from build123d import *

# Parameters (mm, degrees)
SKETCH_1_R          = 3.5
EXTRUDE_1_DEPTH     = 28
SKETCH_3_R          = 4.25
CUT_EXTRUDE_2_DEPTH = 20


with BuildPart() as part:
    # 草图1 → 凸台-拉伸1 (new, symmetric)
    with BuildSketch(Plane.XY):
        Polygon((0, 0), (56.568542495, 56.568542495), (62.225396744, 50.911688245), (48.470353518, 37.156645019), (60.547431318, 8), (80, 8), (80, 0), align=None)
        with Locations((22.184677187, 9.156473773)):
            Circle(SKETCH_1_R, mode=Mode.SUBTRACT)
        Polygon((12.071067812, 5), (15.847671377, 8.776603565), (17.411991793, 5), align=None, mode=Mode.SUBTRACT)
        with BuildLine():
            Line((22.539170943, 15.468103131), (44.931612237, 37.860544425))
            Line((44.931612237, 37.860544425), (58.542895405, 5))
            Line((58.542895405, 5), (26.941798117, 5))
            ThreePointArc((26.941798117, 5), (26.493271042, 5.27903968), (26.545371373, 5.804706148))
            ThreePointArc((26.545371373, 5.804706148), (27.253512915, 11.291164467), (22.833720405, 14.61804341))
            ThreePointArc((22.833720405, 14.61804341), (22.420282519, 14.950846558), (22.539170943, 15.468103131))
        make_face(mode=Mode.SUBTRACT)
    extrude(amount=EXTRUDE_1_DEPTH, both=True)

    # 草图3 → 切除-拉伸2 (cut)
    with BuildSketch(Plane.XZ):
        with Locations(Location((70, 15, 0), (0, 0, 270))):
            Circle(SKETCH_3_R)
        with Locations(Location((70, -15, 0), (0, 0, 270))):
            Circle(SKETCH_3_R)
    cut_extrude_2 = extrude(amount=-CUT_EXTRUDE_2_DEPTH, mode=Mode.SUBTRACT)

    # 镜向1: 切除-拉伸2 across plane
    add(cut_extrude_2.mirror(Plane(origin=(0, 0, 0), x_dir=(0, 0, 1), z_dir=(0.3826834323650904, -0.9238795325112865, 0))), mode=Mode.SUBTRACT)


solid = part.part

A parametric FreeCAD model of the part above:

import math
import FreeCAD as App
import Part
import Sketcher

V = App.Vector
Q = App.Units.Quantity

doc = App.newDocument("Part")
body = doc.addObject("PartDesign::Body", "Body")

sketch1 = body.newObject("Sketcher::SketchObject", "Sketch")
sketch1.AttachmentSupport = (doc.getObject("XY_Plane"), [""])
sketch1.MapMode = "FlatFace"
sketch1.addGeometry([
    Part.LineSegment(V(56.6, 56.6, 0), V(0, 0, 0)),
    Part.LineSegment(V(0, 0, 0), V(80, 0, 0)),
    Part.LineSegment(V(80, 0, 0), V(80, 8, 0)),
    Part.LineSegment(V(80, 8, 0), V(60.5, 8, 0)),
    Part.LineSegment(V(60.5, 8, 0), V(48.5, 37.2, 0)),
    Part.LineSegment(V(48.5, 37.2, 0), V(62.2, 50.9, 0)),
    Part.LineSegment(V(62.2, 50.9, 0), V(56.6, 56.6, 0)),
    Part.LineSegment(V(12.1, 5, 0), V(15.8, 8.8, 0)),
    Part.LineSegment(V(15.8, 8.8, 0), V(17.4, 5, 0)),
    Part.LineSegment(V(17.4, 5, 0), V(12.1, 5, 0)),
    Part.Circle(V(22.2, 9.2, 0), V(0, 0, 1), 3.5),
    Part.LineSegment(V(22.5, 15.5, 0), V(44.9, 37.9, 0)),
    Part.LineSegment(V(44.9, 37.9, 0), V(58.5, 5, 0)),
    Part.LineSegment(V(58.5, 5, 0), V(26.9, 5, 0)),
    Part.ArcOfCircle(Part.Circle(V(26.9, 5.5, 0), V(0, 0, 1), 0.5), math.radians(142), math.radians(270)),
    Part.ArcOfCircle(Part.Circle(V(22.2, 9.2, 0), V(0, 0, 1), 5.5), math.radians(-38), math.radians(83)),
    Part.ArcOfCircle(Part.Circle(V(22.9, 15.1, 0), V(0, 0, 1), 0.5), math.radians(135), math.radians(263)),
], False)
sketch1.addConstraint([
    Sketcher.Constraint("Coincident", 0, 2, 1, 1),
    Sketcher.Constraint("Coincident", 1, 2, 2, 1),
    Sketcher.Constraint("Coincident", 2, 2, 3, 1),
    Sketcher.Constraint("Coincident", 3, 2, 4, 1),
    Sketcher.Constraint("Coincident", 4, 2, 5, 1),
    Sketcher.Constraint("Coincident", 5, 2, 6, 1),
    Sketcher.Constraint("Coincident", 6, 2, 0, 1),
    Sketcher.Constraint("Coincident", 7, 2, 8, 1),
    Sketcher.Constraint("Coincident", 8, 2, 9, 1),
    Sketcher.Constraint("Coincident", 9, 2, 7, 1),
    Sketcher.Constraint("Coincident", 11, 2, 12, 1),
    Sketcher.Constraint("Coincident", 12, 2, 13, 1),
    Sketcher.Constraint("Tangent", 13, 2, 14, 2),
    Sketcher.Constraint("Tangent", 14, 1, 15, 1),
    Sketcher.Constraint("Tangent", 15, 2, 16, 2),
    Sketcher.Constraint("Tangent", 16, 1, 11, 1),
    Sketcher.Constraint("Horizontal", 1),
    Sketcher.Constraint("Vertical", 2),
    Sketcher.Constraint("Horizontal", 3),
    Sketcher.Constraint("Horizontal", 9),
    Sketcher.Constraint("Horizontal", 13),
    Sketcher.Constraint("Coincident", 0, 2, -1, 1),
    Sketcher.Constraint("Coincident", 15, 3, 10, 3),
    Sketcher.Constraint("Equal", 14, 16),
    Sketcher.Constraint("Parallel", 0, 5),
    Sketcher.Constraint("Perpendicular", 5, 6),
    Sketcher.Constraint("Perpendicular", 6, 7),
    Sketcher.Constraint("Parallel", 4, 8),
    Sketcher.Constraint("Parallel", 7, 11),
    Sketcher.Constraint("Parallel", 8, 12),
    Sketcher.Constraint("Horizontal", 9, 2, 12, 2),
    Sketcher.Constraint("Diameter", 10, 7.0),
    Sketcher.Constraint("Radius", 14, 0.5),
    Sketcher.Constraint("Radius", 15, 5.5),
    Sketcher.Constraint("DistanceX", 1, 1, 1, 2, 80.0),
    Sketcher.Constraint("DistanceY", 2, 1, 2, 2, 8.0),
    Sketcher.Constraint("Angle", 0, Q("-135 deg")),
    Sketcher.Constraint("Distance", 0, 80.0),
    Sketcher.Constraint("Distance", 6, 8.0),
    Sketcher.Constraint("DistanceY", -1, 1, 8, 2, 5.0),
    Sketcher.Constraint("Angle", 4, Q("112.5 deg")),
    Sketcher.Constraint("DistanceY", 11, 2, 6, 2, 18.707998),
    Sketcher.Constraint("DistanceX", 3, 2, 3, 1, 19.452569),
    Sketcher.Constraint("DistanceX", -1, 1, 14, 3, 26.941798),
    Sketcher.Constraint("DistanceX", 7, 2, 16, 1, 6.6915),
    Sketcher.Constraint("DistanceY", 7, 2, 16, 1, 6.6915),
    Sketcher.Constraint("DistanceX", 9, 2, 9, 1, 5.340924),
    Sketcher.Constraint("DistanceX", 13, 2, 13, 1, 31.601097),
])
pad1 = body.newObject("PartDesign::Pad", "Pad")
pad1.Profile = sketch1
pad1.Length = 56
pad1.Midplane = True

sketch2 = body.newObject("Sketcher::SketchObject", "Sketch001")
sketch2.AttachmentSupport = (doc.getObject("XZ_Plane"), [""])
sketch2.MapMode = "FlatFace"
sketch2.addGeometry([
    Part.Circle(V(70, 15, 0), V(0, 0, 1), 4.2),
    Part.Circle(V(70, -15, 0), V(0, 0, 1), 4.2),
], False)
sketch2.addConstraint([
    Sketcher.Constraint("Equal", 0, 1),
    Sketcher.Constraint("Symmetric", 0, 3, 1, 3, -1),
    Sketcher.Constraint("Diameter", 0, 8.5),
    Sketcher.Constraint("DistanceX", -1, 1, 0, 3, 70.0),
    Sketcher.Constraint("DistanceY", -1, 1, 0, 3, 15.0),
])
pocket1 = body.newObject("PartDesign::Pocket", "Pocket")
pocket1.Profile = sketch2
pocket1.Length = 20
doc.recompute()

datumplane = body.newObject("PartDesign::Plane", "DatumPlane")
datumplane.Placement = App.Placement(V(0, 0, 0), App.Rotation(V(-0.923879533, -0.382683432, 0), V(0, 0, -1), V(0.382683432, -0.923879533, 0), "ZXY"))
mirrored = body.newObject("PartDesign::Mirrored", "Mirrored")
mirrored.Originals = [pocket1]
mirrored.MirrorPlane = (datumplane, [""])
body.Tip = mirrored

doc.recompute()
